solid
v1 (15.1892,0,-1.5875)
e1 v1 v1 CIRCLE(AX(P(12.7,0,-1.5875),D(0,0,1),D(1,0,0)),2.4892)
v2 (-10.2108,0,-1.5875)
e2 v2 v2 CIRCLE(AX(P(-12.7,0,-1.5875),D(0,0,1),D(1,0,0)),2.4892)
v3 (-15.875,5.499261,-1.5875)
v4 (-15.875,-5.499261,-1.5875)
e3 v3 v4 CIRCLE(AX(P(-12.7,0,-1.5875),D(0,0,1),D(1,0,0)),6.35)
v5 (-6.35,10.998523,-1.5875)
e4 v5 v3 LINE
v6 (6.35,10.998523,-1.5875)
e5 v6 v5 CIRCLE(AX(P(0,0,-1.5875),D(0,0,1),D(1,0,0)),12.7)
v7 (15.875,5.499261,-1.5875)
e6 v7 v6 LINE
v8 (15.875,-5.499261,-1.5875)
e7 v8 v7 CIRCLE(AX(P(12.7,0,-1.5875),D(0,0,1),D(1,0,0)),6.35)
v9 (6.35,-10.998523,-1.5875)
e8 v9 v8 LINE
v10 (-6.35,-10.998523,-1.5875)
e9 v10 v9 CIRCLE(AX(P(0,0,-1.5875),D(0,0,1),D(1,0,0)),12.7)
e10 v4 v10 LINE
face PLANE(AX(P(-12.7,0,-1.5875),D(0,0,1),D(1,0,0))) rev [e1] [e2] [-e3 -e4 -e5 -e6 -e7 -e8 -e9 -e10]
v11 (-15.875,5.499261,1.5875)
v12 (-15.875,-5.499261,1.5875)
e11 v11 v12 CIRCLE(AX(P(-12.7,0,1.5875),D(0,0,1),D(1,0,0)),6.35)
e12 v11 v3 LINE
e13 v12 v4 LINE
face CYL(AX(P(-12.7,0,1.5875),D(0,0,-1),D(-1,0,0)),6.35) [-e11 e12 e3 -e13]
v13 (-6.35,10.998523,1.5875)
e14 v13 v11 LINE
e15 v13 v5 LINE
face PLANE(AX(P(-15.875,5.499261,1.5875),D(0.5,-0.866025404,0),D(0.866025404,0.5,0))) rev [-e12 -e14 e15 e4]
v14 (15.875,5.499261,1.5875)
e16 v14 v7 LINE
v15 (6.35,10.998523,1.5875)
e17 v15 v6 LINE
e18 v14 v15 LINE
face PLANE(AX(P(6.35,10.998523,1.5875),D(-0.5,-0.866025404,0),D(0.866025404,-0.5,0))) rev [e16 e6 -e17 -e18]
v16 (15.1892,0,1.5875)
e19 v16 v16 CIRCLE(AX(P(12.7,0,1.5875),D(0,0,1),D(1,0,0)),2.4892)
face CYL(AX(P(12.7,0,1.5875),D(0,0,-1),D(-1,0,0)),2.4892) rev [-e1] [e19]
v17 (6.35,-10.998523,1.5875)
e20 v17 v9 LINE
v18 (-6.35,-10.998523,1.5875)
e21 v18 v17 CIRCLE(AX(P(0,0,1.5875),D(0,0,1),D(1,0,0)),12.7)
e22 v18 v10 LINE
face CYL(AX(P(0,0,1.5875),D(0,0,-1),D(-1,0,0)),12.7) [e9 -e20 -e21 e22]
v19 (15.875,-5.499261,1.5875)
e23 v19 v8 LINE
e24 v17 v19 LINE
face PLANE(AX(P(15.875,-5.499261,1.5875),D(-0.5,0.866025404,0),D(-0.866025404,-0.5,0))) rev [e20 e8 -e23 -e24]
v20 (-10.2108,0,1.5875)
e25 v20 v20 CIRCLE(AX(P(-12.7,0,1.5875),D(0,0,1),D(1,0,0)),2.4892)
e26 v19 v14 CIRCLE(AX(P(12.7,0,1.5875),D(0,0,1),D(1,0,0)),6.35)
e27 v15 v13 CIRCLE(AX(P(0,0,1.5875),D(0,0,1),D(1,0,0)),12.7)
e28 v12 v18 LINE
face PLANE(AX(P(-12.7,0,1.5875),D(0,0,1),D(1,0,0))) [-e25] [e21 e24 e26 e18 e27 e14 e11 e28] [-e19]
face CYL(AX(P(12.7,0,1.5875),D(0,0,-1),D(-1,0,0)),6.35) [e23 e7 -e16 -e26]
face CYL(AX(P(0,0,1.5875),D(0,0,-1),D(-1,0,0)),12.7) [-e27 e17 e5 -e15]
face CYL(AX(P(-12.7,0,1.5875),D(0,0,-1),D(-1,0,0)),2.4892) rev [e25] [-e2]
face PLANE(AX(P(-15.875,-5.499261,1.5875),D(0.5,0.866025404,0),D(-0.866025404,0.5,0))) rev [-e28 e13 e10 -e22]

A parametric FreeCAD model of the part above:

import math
import FreeCAD as App
import Part
import Sketcher
from FreeCAD import Vector
Q = App.Units.Quantity

doc = App.newDocument("Part")
body = doc.addObject("PartDesign::Body", "Body")

# Sketch on XY plane
sketch1 = doc.addObject("Sketcher::SketchObject", "Sketch")
body.addObject(sketch1)
sketch1.AttachmentSupport = (doc.XY_Plane, [""])
sketch1.MapMode = "FlatFace"
sketch1.addGeometry([
    Part.LineSegment(Vector(-6.3, 11, 0), Vector(-15.9, 5.5, 0)),  # 0
    Part.ArcOfCircle(Part.Circle(Vector(-12.7, 0, 0), Vector(0, 0, 1), 6.3), math.radians(120), math.radians(240)),  # 1
    Part.LineSegment(Vector(-15.9, -5.5, 0), Vector(-6.3, -11, 0)),  # 2
    Part.ArcOfCircle(Part.Circle(Vector(0, 0, 0), Vector(0, 0, 1), 12.7), math.radians(-120), math.radians(-60)),  # 3
    Part.LineSegment(Vector(6.3, -11, 0), Vector(15.9, -5.5, 0)),  # 4
    Part.ArcOfCircle(Part.Circle(Vector(12.7, 0, 0), Vector(0, 0, 1), 6.3), math.radians(-60), math.radians(60)),  # 5
    Part.LineSegment(Vector(15.9, 5.5, 0), Vector(6.3, 11, 0)),  # 6
    Part.ArcOfCircle(Part.Circle(Vector(0, 0, 0), Vector(0, 0, 1), 12.7), math.radians(60), math.radians(120)),  # 7
    Part.Circle(Vector(12.7, 0, 0), Vector(0, 0, 1), 2.5),  # 8
    Part.Circle(Vector(-12.7, 0, 0), Vector(0, 0, 1), 2.5),  # 9
], False)
sketch1.addConstraint([
    Sketcher.Constraint("Tangent", 0, 2, 1, 1),
    Sketcher.Constraint("Tangent", 1, 2, 2, 1),
    Sketcher.Constraint("Tangent", 2, 2, 3, 1),
    Sketcher.Constraint("Tangent", 3, 2, 4, 1),
    Sketcher.Constraint("Tangent", 4, 2, 5, 1),
    Sketcher.Constraint("Tangent", 5, 2, 6, 1),
    Sketcher.Constraint("Tangent", 6, 2, 7, 1),
    Sketcher.Constraint("Tangent", 7, 2, 0, 1),
    Sketcher.Constraint("Coincident", 3, 3, -1, 1),
    Sketcher.Constraint("Coincident", 7, 3, -1, 1),
    Sketcher.Constraint("Coincident", 8, 3, 5, 3),
    Sketcher.Constraint("Coincident", 9, 3, 1, 3),
    Sketcher.Constraint("Equal", 1, 5),
    Sketcher.Constraint("Equal", 3, 7),
    Sketcher.Constraint("Equal", 8, 9),
    Sketcher.Constraint("Symmetric", 1, 3, 5, 3, -1, 1),
    Sketcher.Constraint("PointOnObject", 1, 3, -1),
    Sketcher.Constraint("Radius", 3, Q("0.5 in")),
    Sketcher.Constraint("Radius", 1, Q("0.25 in")),
    Sketcher.Constraint("Diameter", 8, Q("0.196 in")),
    Sketcher.Constraint("Angle", 0, Q("-150 deg")),
])
pad1 = doc.addObject("PartDesign::Pad", "Pad")
body.addObject(pad1)
pad1.Profile = sketch1
pad1.Length = Q("0.125 in")
pad1.Midplane = True

doc.recompute()
